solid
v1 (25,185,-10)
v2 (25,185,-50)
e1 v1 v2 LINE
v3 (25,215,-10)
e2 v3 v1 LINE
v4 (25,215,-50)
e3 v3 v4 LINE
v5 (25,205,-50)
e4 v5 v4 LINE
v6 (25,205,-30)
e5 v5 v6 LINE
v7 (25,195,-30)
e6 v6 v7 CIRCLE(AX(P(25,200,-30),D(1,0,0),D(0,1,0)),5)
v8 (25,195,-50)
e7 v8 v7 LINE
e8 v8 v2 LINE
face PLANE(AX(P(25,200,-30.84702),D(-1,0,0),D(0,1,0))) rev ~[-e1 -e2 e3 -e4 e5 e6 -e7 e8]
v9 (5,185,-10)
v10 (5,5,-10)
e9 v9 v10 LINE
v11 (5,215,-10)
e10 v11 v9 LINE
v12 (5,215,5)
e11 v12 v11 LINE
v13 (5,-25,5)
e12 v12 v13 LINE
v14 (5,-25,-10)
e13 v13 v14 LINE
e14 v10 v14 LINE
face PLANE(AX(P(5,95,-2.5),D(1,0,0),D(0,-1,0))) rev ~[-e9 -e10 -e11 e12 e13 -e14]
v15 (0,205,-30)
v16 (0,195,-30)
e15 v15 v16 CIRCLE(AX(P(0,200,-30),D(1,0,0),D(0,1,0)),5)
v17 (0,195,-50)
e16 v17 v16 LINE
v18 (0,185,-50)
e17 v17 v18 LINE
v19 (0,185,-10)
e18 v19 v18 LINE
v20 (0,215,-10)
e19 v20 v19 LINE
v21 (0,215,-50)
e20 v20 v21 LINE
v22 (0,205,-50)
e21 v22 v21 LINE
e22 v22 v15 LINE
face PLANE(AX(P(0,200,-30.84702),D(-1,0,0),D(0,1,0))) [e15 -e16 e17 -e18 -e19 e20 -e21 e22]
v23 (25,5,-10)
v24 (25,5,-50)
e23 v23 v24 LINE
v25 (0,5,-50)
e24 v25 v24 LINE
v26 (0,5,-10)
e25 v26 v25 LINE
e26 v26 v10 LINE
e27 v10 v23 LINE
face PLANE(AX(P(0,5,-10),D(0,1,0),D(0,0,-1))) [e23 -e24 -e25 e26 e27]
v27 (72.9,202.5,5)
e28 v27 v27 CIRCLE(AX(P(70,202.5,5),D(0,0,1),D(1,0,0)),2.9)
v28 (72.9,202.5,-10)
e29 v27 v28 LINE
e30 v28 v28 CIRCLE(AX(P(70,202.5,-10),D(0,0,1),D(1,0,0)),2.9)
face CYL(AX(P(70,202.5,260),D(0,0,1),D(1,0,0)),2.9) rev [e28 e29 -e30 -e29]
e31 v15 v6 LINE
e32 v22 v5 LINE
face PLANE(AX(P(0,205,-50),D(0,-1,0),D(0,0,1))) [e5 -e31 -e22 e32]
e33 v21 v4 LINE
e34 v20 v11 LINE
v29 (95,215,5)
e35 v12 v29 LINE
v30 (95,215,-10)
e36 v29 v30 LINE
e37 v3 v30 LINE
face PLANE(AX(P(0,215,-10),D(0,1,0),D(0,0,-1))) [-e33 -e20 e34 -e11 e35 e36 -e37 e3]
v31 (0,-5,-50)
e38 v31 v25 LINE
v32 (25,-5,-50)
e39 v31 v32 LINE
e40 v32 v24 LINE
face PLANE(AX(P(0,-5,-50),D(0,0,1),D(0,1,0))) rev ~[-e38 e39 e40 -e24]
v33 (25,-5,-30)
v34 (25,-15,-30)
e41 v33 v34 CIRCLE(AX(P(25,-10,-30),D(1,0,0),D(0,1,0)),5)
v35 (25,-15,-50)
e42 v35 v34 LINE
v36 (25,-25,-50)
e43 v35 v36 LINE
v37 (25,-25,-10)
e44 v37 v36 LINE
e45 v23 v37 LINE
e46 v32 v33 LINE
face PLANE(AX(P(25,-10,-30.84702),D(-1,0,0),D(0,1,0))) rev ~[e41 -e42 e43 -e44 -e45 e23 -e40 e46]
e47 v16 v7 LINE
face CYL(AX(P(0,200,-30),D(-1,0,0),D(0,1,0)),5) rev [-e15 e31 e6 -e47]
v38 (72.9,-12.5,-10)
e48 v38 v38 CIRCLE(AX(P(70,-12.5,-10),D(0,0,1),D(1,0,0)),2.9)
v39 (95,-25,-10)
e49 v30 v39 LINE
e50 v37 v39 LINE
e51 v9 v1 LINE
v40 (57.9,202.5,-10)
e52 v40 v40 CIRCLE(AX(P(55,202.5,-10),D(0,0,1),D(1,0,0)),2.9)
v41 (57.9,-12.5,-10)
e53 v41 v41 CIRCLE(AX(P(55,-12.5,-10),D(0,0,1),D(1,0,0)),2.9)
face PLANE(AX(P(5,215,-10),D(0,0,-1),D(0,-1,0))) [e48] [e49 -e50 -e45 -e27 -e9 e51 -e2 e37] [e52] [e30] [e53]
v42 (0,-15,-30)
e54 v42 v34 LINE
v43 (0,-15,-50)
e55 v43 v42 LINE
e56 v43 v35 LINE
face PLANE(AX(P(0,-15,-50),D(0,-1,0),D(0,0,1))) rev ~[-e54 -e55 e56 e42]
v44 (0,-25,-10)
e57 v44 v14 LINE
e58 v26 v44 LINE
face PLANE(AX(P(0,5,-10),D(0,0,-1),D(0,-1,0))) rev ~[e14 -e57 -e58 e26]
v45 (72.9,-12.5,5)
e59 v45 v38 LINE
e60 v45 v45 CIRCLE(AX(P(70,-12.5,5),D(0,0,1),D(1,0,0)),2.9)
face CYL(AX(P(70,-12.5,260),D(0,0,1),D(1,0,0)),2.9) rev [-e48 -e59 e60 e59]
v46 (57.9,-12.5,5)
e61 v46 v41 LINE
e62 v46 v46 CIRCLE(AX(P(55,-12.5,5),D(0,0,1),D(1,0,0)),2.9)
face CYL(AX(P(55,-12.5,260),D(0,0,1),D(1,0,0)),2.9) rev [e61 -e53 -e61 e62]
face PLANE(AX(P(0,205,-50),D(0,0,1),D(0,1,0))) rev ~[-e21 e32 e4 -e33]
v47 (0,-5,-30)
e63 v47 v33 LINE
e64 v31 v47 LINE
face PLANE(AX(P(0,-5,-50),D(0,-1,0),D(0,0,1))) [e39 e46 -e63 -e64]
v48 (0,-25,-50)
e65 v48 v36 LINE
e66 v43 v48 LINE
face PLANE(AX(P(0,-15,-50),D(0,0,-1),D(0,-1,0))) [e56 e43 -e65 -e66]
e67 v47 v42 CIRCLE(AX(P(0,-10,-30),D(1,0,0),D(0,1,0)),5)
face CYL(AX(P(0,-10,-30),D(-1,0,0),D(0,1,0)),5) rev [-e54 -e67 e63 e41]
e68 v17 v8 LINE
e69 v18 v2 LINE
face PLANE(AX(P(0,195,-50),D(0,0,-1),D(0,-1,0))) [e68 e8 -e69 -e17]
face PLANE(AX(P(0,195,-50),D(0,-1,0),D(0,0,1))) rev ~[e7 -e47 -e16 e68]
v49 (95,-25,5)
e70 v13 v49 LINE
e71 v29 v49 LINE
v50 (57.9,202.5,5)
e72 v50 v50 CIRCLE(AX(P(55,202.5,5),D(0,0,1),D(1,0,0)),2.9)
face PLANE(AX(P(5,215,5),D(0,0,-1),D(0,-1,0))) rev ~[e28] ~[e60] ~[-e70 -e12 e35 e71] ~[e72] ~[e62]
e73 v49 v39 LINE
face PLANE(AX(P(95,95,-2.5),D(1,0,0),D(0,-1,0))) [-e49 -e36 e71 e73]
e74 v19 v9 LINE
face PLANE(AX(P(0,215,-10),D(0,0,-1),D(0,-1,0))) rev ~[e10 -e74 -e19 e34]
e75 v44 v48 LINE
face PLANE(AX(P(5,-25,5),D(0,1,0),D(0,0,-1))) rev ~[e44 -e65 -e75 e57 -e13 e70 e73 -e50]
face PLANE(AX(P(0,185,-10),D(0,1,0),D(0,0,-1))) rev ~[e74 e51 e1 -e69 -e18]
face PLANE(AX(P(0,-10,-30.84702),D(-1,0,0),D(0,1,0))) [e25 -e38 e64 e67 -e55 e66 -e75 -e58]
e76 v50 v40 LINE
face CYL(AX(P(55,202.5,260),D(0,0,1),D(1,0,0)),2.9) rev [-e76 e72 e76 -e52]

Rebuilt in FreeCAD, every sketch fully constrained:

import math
import FreeCAD as App
import Part
import Sketcher

V = App.Vector
Q = App.Units.Quantity

doc = App.newDocument("Part")
body = doc.addObject("PartDesign::Body", "Body")

# Sketch on YZ plane
sketch1 = body.newObject("Sketcher::SketchObject", "Sketch")
sketch1.AttachmentSupport = (doc.getObject("YZ_Plane"), [""])
sketch1.MapMode = "FlatFace"
sketch1.AttachmentOffset = App.Placement(V(0, 0, 5), App.Rotation())
sketch1.addGeometry([
    Part.LineSegment(V(-25, 270, 0), V(-25, 255, 0)),
    Part.LineSegment(V(-25, 255, 0), V(215, 255, 0)),
    Part.LineSegment(V(215, 255, 0), V(215, 270, 0)),
    Part.LineSegment(V(215, 270, 0), V(-25, 270, 0)),
], False)
sketch1.addConstraint([
    Sketcher.Constraint("Coincident", 0, 2, 1, 1),
    Sketcher.Constraint("Coincident", 1, 2, 2, 1),
    Sketcher.Constraint("Coincident", 2, 2, 3, 1),
    Sketcher.Constraint("Coincident", 3, 2, 0, 1),
    Sketcher.Constraint("Vertical", 0),
    Sketcher.Constraint("Horizontal", 1),
    Sketcher.Constraint("Vertical", 2),
    Sketcher.Constraint("Horizontal", 3),
    Sketcher.Constraint("DistanceX", 1, 1, 1, 2, Q("240 mm")),
    Sketcher.Constraint("DistanceY", 0, 2, 0, 1, Q("15 mm")),
    Sketcher.Constraint("DistanceX", 0, 2, -1, 1, Q("25 mm")),
    Sketcher.Constraint("DistanceY", -1, 1, 0, 2, Q("255 mm")),
])
pad1 = body.newObject("PartDesign::Pad", "Pad")
pad1.Profile = sketch1
pad1.Length = 90

# Sketch on XY plane
sketch2 = body.newObject("Sketcher::SketchObject", "Sketch001")
sketch2.AttachmentSupport = (doc.getObject("XY_Plane"), [""])
sketch2.MapMode = "FlatFace"
sketch2.addGeometry([
    Part.Circle(V(55, 202.5, 0), V(0, 0, 1), 2.9),
    Part.Circle(V(70, 202.5, 0), V(0, 0, 1), 2.9),
    Part.Circle(V(55, -12.5, 0), V(0, 0, 1), 2.9),
    Part.Circle(V(70, -12.5, 0), V(0, 0, 1), 2.9),
], False)
sketch2.addConstraint([
    Sketcher.Constraint("Equal", 0, 1),
    Sketcher.Constraint("Equal", 1, 2),
    Sketcher.Constraint("Equal", 2, 3),
    Sketcher.Constraint("Horizontal", 0, 3, 1, 3),
    Sketcher.Constraint("Horizontal", 2, 3, 3, 3),
    Sketcher.Constraint("Vertical", 0, 3, 2, 3),
    Sketcher.Constraint("Vertical", 1, 3, 3, 3),
    Sketcher.Constraint("Diameter", 0, Q("5.8 mm")),
    Sketcher.Constraint("DistanceX", -1, 1, 0, 3, Q("55 mm")),
    Sketcher.Constraint("DistanceX", -1, 1, 1, 3, Q("70 mm")),
    Sketcher.Constraint("DistanceY", 2, 3, 0, 3, Q("215 mm")),
    Sketcher.Constraint("DistanceY", -1, 1, 0, 3, Q("202.5 mm")),
])
pocket1 = body.newObject("PartDesign::Pocket", "Pocket")
pocket1.Profile = sketch2
pocket1.Type = "ThroughAll"
pocket1.Reversed = True

# Sketch on YZ plane
sketch3 = body.newObject("Sketcher::SketchObject", "Sketch002")
sketch3.AttachmentSupport = (doc.getObject("YZ_Plane"), [""])
sketch3.MapMode = "FlatFace"
sketch3.addGeometry([
    Part.LineSegment(V(-25, 310, 0), V(-25, 270, 0)),  # 0
    Part.LineSegment(V(-25, 270, 0), V(5, 270, 0)),  # 1
    Part.LineSegment(V(5, 270, 0), V(5, 310, 0)),  # 2
    Part.LineSegment(V(5, 310, 0), V(-5, 310, 0)),  # 3
    Part.LineSegment(V(-5, 310, 0), V(-5, 290, 0)),  # 4
    Part.ArcOfCircle(Part.Circle(V(-10, 290, 0), V(0, 0, 1), 5), math.radians(180), math.radians(360)),  # 5
    Part.LineSegment(V(-15, 290, 0), V(-15, 310, 0)),  # 6
    Part.LineSegment(V(-15, 310, 0), V(-25, 310, 0)),  # 7
    Part.LineSegment(V(185, 310, 0), V(185, 270, 0)),  # 8
    Part.LineSegment(V(185, 270, 0), V(215, 270, 0)),  # 9
    Part.LineSegment(V(215, 270, 0), V(215, 310, 0)),  # 10
    Part.LineSegment(V(215, 310, 0), V(205, 310, 0)),  # 11
    Part.LineSegment(V(205, 310, 0), V(205, 290, 0)),  # 12
    Part.ArcOfCircle(Part.Circle(V(200, 290, 0), V(0, 0, 1), 5), math.radians(180), math.radians(360)),  # 13
    Part.LineSegment(V(195, 290, 0), V(195, 310, 0)),  # 14
    Part.LineSegment(V(195, 310, 0), V(185, 310, 0)),  # 15
], False)
sketch3.addConstraint([
    Sketcher.Constraint("Coincident", 0, 2, 1, 1),
    Sketcher.Constraint("Coincident", 1, 2, 2, 1),
    Sketcher.Constraint("Coincident", 2, 2, 3, 1),
    Sketcher.Constraint("Coincident", 3, 2, 4, 1),
    Sketcher.Constraint("Tangent", 4, 2, 5, 2),
    Sketcher.Constraint("Tangent", 5, 1, 6, 1),
    Sketcher.Constraint("Coincident", 6, 2, 7, 1),
    Sketcher.Constraint("Coincident", 7, 2, 0, 1),
    Sketcher.Constraint("Coincident", 8, 2, 9, 1),
    Sketcher.Constraint("Coincident", 9, 2, 10, 1),
    Sketcher.Constraint("Coincident", 10, 2, 11, 1),
    Sketcher.Constraint("Coincident", 11, 2, 12, 1),
    Sketcher.Constraint("Tangent", 12, 2, 13, 2),
    Sketcher.Constraint("Tangent", 13, 1, 14, 1),
    Sketcher.Constraint("Coincident", 14, 2, 15, 1),
    Sketcher.Constraint("Coincident", 15, 2, 8, 1),
    Sketcher.Constraint("Vertical", 0),
    Sketcher.Constraint("Horizontal", 1),
    Sketcher.Constraint("Vertical", 2),
    Sketcher.Constraint("Horizontal", 3),
    Sketcher.Constraint("Vertical", 4),
    Sketcher.Constraint("Vertical", 6),
    Sketcher.Constraint("Horizontal", 7),
    Sketcher.Constraint("Vertical", 8),
    Sketcher.Constraint("Horizontal", 9),
    Sketcher.Constraint("Vertical", 10),
    Sketcher.Constraint("Horizontal", 11),
    Sketcher.Constraint("Vertical", 12),
    Sketcher.Constraint("Vertical", 14),
    Sketcher.Constraint("Horizontal", 15),
    Sketcher.Constraint("Equal", 5, 13),
    Sketcher.Constraint("Horizontal", 5, 3, 13, 3),
    Sketcher.Constraint("Horizontal", 3, 2, 6, 2),
    Sketcher.Constraint("Horizontal", 1, 2, 8, 2),
    Sketcher.Constraint("Horizontal", 7, 2, 10, 2),
    Sketcher.Constraint("Horizontal", 11, 2, 14, 2),
    Sketcher.Constraint("Equal", 3, 7),
    Sketcher.Constraint("Equal", 1, 9),
    Sketcher.Constraint("Equal", 7, 11),
    Sketcher.Constraint("Radius", 5, Q("5 mm")),
    Sketcher.Constraint("DistanceX", 1, 1, 1, 2, Q("30 mm")),
    Sketcher.Constraint("DistanceY", 0, 2, 0, 1, Q("40 mm")),
    Sketcher.Constraint("DistanceY", 4, 2, 4, 1, Q("20 mm")),
    Sketcher.Constraint("DistanceX", 5, 3, -1, 1, Q("10 mm")),
    Sketcher.Constraint("DistanceY", -1, 1, 5, 3, Q("290 mm")),
    Sketcher.Constraint("DistanceX", -1, 1, 13, 3, Q("200 mm")),
])
pad2 = body.newObject("PartDesign::Pad", "Pad001")
pad2.Profile = sketch3
pad2.Length = 25
body2 = doc.addObject("PartDesign::Body", "Body001")
doc.recompute()

body.Placement = App.Placement(V(0, 190, 260), App.Rotation(V(1, 0, 0), 180))
boolean = body2.newObject("PartDesign::Boolean", "Boolean")
boolean.Type = "Fuse"
boolean.addObjects([body])

doc.recompute()
